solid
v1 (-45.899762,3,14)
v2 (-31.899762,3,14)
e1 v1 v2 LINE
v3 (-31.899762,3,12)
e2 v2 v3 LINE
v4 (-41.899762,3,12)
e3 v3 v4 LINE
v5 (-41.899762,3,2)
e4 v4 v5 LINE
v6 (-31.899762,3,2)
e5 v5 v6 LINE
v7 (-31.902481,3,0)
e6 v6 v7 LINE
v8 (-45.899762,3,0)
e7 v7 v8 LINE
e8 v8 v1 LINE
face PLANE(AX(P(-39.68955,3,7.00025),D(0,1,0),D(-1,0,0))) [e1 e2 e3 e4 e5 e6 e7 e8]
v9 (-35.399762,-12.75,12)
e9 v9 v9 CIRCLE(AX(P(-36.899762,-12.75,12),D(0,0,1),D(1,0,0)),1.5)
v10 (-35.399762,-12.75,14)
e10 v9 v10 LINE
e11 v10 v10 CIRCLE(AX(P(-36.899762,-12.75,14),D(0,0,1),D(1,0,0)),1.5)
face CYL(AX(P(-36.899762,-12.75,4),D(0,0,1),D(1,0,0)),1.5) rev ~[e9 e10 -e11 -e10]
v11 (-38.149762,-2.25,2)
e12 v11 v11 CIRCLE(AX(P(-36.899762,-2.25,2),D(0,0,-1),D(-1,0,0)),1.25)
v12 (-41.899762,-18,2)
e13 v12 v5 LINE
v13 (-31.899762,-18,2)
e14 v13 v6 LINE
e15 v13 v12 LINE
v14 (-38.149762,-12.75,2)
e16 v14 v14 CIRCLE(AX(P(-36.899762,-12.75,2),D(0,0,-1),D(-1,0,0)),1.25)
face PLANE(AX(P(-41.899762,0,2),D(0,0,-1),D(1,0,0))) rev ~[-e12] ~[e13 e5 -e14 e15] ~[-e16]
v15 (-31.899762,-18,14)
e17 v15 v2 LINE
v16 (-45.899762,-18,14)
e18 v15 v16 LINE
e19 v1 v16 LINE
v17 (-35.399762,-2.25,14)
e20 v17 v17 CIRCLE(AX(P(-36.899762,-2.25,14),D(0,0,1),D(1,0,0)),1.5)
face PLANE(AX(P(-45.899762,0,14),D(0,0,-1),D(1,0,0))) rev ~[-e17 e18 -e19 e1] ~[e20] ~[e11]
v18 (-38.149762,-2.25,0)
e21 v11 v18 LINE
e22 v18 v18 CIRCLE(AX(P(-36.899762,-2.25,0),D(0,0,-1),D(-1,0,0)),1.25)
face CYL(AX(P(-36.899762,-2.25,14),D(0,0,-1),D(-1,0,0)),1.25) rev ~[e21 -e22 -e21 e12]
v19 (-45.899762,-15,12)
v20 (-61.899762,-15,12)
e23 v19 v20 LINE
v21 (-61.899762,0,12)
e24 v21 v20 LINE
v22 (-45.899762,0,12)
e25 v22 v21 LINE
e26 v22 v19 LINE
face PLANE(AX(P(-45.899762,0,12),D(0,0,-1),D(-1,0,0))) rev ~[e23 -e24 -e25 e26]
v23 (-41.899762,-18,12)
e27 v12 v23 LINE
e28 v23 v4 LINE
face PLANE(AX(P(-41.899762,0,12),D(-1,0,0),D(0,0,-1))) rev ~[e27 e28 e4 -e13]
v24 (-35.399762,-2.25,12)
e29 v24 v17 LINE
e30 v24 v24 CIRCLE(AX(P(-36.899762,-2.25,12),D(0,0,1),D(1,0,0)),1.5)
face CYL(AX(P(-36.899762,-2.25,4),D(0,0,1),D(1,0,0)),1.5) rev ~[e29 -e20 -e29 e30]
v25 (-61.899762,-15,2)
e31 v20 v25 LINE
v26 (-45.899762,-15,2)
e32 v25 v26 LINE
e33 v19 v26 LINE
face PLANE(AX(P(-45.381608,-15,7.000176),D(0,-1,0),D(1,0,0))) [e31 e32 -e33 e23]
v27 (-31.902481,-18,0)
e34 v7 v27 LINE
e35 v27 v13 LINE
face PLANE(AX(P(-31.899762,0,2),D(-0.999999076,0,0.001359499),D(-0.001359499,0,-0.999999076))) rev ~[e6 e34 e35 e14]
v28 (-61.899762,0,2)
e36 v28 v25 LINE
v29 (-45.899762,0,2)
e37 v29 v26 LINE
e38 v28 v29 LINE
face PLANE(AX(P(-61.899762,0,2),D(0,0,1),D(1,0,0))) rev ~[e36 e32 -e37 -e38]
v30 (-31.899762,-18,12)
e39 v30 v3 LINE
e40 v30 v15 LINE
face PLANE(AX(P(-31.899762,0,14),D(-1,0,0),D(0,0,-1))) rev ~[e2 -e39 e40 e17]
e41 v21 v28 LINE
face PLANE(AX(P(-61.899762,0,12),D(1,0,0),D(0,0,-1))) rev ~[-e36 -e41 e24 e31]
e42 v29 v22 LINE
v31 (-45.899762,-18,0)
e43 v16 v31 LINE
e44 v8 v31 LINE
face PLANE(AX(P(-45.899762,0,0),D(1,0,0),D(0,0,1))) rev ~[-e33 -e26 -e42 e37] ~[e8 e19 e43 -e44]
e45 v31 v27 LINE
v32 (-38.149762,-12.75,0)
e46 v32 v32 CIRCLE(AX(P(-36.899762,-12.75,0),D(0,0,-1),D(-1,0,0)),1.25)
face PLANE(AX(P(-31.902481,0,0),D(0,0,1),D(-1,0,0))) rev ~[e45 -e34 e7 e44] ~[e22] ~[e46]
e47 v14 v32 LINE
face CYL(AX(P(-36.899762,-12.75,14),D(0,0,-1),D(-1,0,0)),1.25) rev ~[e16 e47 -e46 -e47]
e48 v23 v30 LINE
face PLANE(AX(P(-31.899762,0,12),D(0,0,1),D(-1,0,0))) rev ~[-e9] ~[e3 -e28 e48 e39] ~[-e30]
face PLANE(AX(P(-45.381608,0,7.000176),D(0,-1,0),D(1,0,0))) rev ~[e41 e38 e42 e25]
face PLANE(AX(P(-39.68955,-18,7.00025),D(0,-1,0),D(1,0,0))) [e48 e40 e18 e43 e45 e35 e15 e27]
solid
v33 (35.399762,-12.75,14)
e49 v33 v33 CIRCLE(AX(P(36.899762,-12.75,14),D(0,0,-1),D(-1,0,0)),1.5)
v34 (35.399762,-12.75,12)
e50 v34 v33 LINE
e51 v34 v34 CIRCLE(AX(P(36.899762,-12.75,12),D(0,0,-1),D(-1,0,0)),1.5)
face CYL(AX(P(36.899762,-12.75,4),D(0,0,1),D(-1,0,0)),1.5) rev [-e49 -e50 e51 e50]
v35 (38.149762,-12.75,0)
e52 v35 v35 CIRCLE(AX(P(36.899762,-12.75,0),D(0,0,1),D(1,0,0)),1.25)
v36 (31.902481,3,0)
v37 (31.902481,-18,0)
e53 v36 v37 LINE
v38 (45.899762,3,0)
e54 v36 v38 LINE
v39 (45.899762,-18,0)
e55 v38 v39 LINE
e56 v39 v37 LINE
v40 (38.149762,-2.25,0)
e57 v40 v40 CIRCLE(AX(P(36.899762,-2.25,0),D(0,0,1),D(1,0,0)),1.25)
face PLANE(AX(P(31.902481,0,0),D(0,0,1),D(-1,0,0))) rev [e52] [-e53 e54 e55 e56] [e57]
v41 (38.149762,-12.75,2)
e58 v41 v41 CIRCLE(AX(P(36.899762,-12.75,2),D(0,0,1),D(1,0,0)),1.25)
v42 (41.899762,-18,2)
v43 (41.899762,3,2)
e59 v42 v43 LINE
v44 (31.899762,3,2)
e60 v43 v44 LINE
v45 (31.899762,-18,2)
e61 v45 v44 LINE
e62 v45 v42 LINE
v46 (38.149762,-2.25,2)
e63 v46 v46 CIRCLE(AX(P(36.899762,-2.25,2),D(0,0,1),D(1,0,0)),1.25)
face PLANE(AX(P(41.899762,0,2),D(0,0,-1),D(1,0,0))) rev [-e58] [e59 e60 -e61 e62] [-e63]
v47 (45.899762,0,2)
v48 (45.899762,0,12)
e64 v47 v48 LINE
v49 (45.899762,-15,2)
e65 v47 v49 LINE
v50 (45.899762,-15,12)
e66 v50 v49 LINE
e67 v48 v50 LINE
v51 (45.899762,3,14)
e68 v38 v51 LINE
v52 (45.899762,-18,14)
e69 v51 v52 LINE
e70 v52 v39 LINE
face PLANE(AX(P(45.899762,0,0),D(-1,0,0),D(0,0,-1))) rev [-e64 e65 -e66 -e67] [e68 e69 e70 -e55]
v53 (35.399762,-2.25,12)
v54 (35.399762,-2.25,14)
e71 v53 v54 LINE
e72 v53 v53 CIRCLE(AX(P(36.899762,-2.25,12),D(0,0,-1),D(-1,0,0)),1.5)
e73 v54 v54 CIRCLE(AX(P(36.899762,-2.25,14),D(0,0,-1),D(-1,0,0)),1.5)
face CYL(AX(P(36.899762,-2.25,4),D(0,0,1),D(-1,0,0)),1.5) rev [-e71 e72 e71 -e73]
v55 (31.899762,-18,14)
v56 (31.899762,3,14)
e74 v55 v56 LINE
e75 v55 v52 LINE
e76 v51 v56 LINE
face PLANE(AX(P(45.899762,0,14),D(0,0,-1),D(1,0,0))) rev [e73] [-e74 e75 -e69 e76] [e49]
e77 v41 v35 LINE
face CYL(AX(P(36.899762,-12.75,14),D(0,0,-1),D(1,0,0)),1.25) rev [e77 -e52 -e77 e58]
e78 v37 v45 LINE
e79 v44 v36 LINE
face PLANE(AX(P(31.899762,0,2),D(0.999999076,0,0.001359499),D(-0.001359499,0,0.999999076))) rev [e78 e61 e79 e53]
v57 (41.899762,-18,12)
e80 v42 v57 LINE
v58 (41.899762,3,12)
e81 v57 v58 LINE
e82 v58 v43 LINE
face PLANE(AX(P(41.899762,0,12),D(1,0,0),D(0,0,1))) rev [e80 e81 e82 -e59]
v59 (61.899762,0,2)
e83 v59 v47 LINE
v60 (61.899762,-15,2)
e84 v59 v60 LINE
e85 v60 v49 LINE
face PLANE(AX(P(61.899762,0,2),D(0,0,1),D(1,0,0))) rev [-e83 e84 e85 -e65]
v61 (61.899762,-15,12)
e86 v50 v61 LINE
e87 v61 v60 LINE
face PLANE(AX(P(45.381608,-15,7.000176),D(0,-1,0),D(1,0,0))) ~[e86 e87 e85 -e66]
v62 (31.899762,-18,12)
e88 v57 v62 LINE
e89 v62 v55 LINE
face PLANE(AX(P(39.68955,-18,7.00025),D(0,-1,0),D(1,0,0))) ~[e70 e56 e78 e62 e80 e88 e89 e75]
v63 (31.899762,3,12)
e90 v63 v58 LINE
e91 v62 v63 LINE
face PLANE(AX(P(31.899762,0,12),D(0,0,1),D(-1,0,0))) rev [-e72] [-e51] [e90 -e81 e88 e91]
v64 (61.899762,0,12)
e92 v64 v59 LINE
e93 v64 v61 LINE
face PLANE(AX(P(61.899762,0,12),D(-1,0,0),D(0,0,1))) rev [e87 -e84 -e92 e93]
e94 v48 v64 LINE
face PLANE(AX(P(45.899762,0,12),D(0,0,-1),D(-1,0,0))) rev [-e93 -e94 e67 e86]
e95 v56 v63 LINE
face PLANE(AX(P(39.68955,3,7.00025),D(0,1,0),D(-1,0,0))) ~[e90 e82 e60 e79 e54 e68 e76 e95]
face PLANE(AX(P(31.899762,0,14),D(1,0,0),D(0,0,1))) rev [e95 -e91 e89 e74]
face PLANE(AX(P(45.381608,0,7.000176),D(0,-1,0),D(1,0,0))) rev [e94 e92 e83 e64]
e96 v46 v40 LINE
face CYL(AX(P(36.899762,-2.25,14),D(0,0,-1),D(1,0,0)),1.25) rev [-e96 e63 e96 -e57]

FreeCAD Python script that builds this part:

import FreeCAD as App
import Part
import Sketcher

V = App.Vector

doc = App.newDocument("Part")
body = doc.addObject("PartDesign::Body", "Body")

# Sketch on XZ plane
sketch1 = body.newObject("Sketcher::SketchObject", "Sketch")
sketch1.AttachmentSupport = (doc.getObject("XZ_Plane"), [""])
sketch1.MapMode = "FlatFace"
sketch1.addGeometry(Part.LineSegment(V(-45.899762, 0, 0), V(-31.902481, 0, 0)), False)
sketch1.addGeometry(Part.LineSegment(V(-31.902481, 0, 0), V(-31.899762, 2, 0)), False)
sketch1.addGeometry(Part.LineSegment(V(-31.899762, 2, 0), V(-41.899762, 2, 0)), False)
sketch1.addGeometry(Part.LineSegment(V(-41.899762, 2, 0), V(-41.899762, 12, 0)), False)
sketch1.addGeometry(Part.LineSegment(V(-41.899762, 12, 0), V(-31.899762, 12, 0)), False)
sketch1.addGeometry(Part.LineSegment(V(-31.899762, 12, 0), V(-31.899762, 14, 0)), False)
sketch1.addGeometry(Part.LineSegment(V(-31.899762, 14, 0), V(-45.899762, 14, 0)), False)
sketch1.addGeometry(Part.LineSegment(V(-45.899762, 14, 0), V(-45.899762, 12, 0)), False)
sketch1.addGeometry(Part.LineSegment(V(-45.899762, 12, 0), V(-61.899762, 12, 0)), False)
sketch1.addGeometry(Part.LineSegment(V(-61.899762, 12, 0), V(-61.899762, 2, 0)), False)
sketch1.addGeometry(Part.LineSegment(V(-61.899762, 2, 0), V(-45.899762, 2, 0)), False)
sketch1.addGeometry(Part.LineSegment(V(-45.899762, 2, 0), V(-45.899762, 0, 0)), False)
sketch1.addConstraint(Sketcher.Constraint("Coincident", 0, 2, 1, 1))
sketch1.addConstraint(Sketcher.Constraint("Coincident", 1, 2, 2, 1))
sketch1.addConstraint(Sketcher.Constraint("Coincident", 2, 2, 3, 1))
sketch1.addConstraint(Sketcher.Constraint("Coincident", 3, 2, 4, 1))
sketch1.addConstraint(Sketcher.Constraint("Coincident", 4, 2, 5, 1))
sketch1.addConstraint(Sketcher.Constraint("Coincident", 5, 2, 6, 1))
sketch1.addConstraint(Sketcher.Constraint("Coincident", 6, 2, 7, 1))
sketch1.addConstraint(Sketcher.Constraint("Coincident", 7, 2, 8, 1))
sketch1.addConstraint(Sketcher.Constraint("Coincident", 8, 2, 9, 1))
sketch1.addConstraint(Sketcher.Constraint("Coincident", 9, 2, 10, 1))
sketch1.addConstraint(Sketcher.Constraint("Coincident", 10, 2, 11, 1))
sketch1.addConstraint(Sketcher.Constraint("Coincident", 11, 2, 0, 1))
sketch1.addConstraint(Sketcher.Constraint("Horizontal", 0))
sketch1.addConstraint(Sketcher.Constraint("Horizontal", 2))
sketch1.addConstraint(Sketcher.Constraint("Vertical", 3))
sketch1.addConstraint(Sketcher.Constraint("Horizontal", 4))
sketch1.addConstraint(Sketcher.Constraint("Vertical", 5))
sketch1.addConstraint(Sketcher.Constraint("Horizontal", 6))
sketch1.addConstraint(Sketcher.Constraint("Vertical", 7))
sketch1.addConstraint(Sketcher.Constraint("Horizontal", 8))
sketch1.addConstraint(Sketcher.Constraint("Vertical", 9))
sketch1.addConstraint(Sketcher.Constraint("Horizontal", 10))
sketch1.addConstraint(Sketcher.Constraint("Vertical", 11))
sketch1.addConstraint(Sketcher.Constraint("PointOnObject", 0, 2, -1))
sketch1.addConstraint(Sketcher.Constraint("Horizontal", 4, 2, 7, 2))
sketch1.addConstraint(Sketcher.Constraint("Horizontal", 2, 2, 9, 2))
sketch1.addConstraint(Sketcher.Constraint("Vertical", 1, 2, 4, 2))
sketch1.addConstraint(Sketcher.Constraint("Vertical", 7, 2, 10, 2))
sketch1.addConstraint(Sketcher.Constraint("Equal", 4, 3))
sketch1.addConstraint(Sketcher.Constraint("Equal", 7, 11))
sketch1.addConstraint(Sketcher.Constraint("DistanceX", 2, 2, 2, 1, 10.0))
sketch1.addConstraint(Sketcher.Constraint("DistanceX", 6, 2, 6, 1, 14.0))
sketch1.addConstraint(Sketcher.Constraint("DistanceX", 8, 2, 8, 1, 16.0))
sketch1.addConstraint(Sketcher.Constraint("DistanceY", 5, 1, 5, 2, 2.0))
sketch1.addConstraint(Sketcher.Constraint("DistanceX", 0, 1, 0, 2, 13.997281))
sketch1.addConstraint(Sketcher.Constraint("DistanceX", 0, 2, -1, 1, 31.902481))
pad1 = body.newObject("PartDesign::Pad", "Pad")
pad1.Profile = sketch1
pad1.Length = 15

# Sketch on XZ plane
sketch2 = body.newObject("Sketcher::SketchObject", "Sketch001")
sketch2.AttachmentSupport = (doc.getObject("XZ_Plane"), [""])
sketch2.MapMode = "FlatFace"
sketch2.AttachmentOffset = App.Placement(V(0, 0, 15), App.Rotation())
sketch2.addGeometry(Part.LineSegment(V(-45.899762, 14, 0), V(-45.899762, 0, 0)), False)
sketch2.addGeometry(Part.LineSegment(V(-45.899762, 0, 0), V(-31.902481, 0, 0)), False)
sketch2.addGeometry(Part.LineSegment(V(-31.902481, 0, 0), V(-31.899762, 2, 0)), False)
sketch2.addGeometry(Part.LineSegment(V(-31.899762, 2, 0), V(-41.899762, 2, 0)), False)
sketch2.addGeometry(Part.LineSegment(V(-41.899762, 2, 0), V(-41.899762, 12, 0)), False)
sketch2.addGeometry(Part.LineSegment(V(-41.899762, 12, 0), V(-31.899762, 12, 0)), False)
sketch2.addGeometry(Part.LineSegment(V(-31.899762, 12, 0), V(-31.899762, 14, 0)), False)
sketch2.addGeometry(Part.LineSegment(V(-31.899762, 14, 0), V(-45.899762, 14, 0)), False)
sketch2.addConstraint(Sketcher.Constraint("Coincident", 0, 2, 1, 1))
sketch2.addConstraint(Sketcher.Constraint("Coincident", 1, 2, 2, 1))
sketch2.addConstraint(Sketcher.Constraint("Coincident", 2, 2, 3, 1))
sketch2.addConstraint(Sketcher.Constraint("Coincident", 3, 2, 4, 1))
sketch2.addConstraint(Sketcher.Constraint("Coincident", 4, 2, 5, 1))
sketch2.addConstraint(Sketcher.Constraint("Coincident", 5, 2, 6, 1))
sketch2.addConstraint(Sketcher.Constraint("Coincident", 6, 2, 7, 1))
sketch2.addConstraint(Sketcher.Constraint("Coincident", 7, 2, 0, 1))
sketch2.addConstraint(Sketcher.Constraint("Vertical", 0))
sketch2.addConstraint(Sketcher.Constraint("Horizontal", 1))
sketch2.addConstraint(Sketcher.Constraint("Horizontal", 3))
sketch2.addConstraint(Sketcher.Constraint("Vertical", 4))
sketch2.addConstraint(Sketcher.Constraint("Horizontal", 5))
sketch2.addConstraint(Sketcher.Constraint("Vertical", 6))
sketch2.addConstraint(Sketcher.Constraint("Horizontal", 7))
sketch2.addConstraint(Sketcher.Constraint("PointOnObject", 0, 2, -1))
sketch2.addConstraint(Sketcher.Constraint("Vertical", 2, 2, 5, 2))
sketch2.addConstraint(Sketcher.Constraint("Equal", 7, 0))
sketch2.addConstraint(Sketcher.Constraint("Equal", 5, 4))
sketch2.addConstraint(Sketcher.Constraint("DistanceX", 3, 2, 3, 1, 10.0))
sketch2.addConstraint(Sketcher.Constraint("DistanceX", 7, 2, 7, 1, 14.0))
sketch2.addConstraint(Sketcher.Constraint("DistanceY", 6, 1, 6, 2, 2.0))
sketch2.addConstraint(Sketcher.Constraint("DistanceX", 1, 1, 1, 2, 13.997281))
sketch2.addConstraint(Sketcher.Constraint("DistanceX", 1, 2, -1, 1, 31.902481))
pad2 = body.newObject("PartDesign::Pad", "Pad001")
pad2.Profile = sketch2
pad2.Length = 3

# Sketch on XZ plane
sketch3 = body.newObject("Sketcher::SketchObject", "Sketch002")
sketch3.AttachmentSupport = (doc.getObject("XZ_Plane"), [""])
sketch3.MapMode = "FlatFace"
sketch3.addGeometry(Part.LineSegment(V(-45.899762, 14, 0), V(-31.899762, 14, 0)), False)
sketch3.addGeometry(Part.LineSegment(V(-31.899762, 14, 0), V(-31.899762, 12, 0)), False)
sketch3.addGeometry(Part.LineSegment(V(-31.899762, 12, 0), V(-41.899762, 12, 0)), False)
sketch3.addGeometry(Part.LineSegment(V(-41.899762, 12, 0), V(-41.899762, 2, 0)), False)
sketch3.addGeometry(Part.LineSegment(V(-41.899762, 2, 0), V(-31.899762, 2, 0)), False)
sketch3.addGeometry(Part.LineSegment(V(-31.899762, 2, 0), V(-31.902481, 0, 0)), False)
sketch3.addGeometry(Part.LineSegment(V(-31.902481, 0, 0), V(-45.899762, 0, 0)), False)
sketch3.addGeometry(Part.LineSegment(V(-45.899762, 0, 0), V(-45.899762, 14, 0)), False)
sketch3.addConstraint(Sketcher.Constraint("Coincident", 0, 2, 1, 1))
sketch3.addConstraint(Sketcher.Constraint("Coincident", 1, 2, 2, 1))
sketch3.addConstraint(Sketcher.Constraint("Coincident", 2, 2, 3, 1))
sketch3.addConstraint(Sketcher.Constraint("Coincident", 3, 2, 4, 1))
sketch3.addConstraint(Sketcher.Constraint("Coincident", 4, 2, 5, 1))
sketch3.addConstraint(Sketcher.Constraint("Coincident", 5, 2, 6, 1))
sketch3.addConstraint(Sketcher.Constraint("Coincident", 6, 2, 7, 1))
sketch3.addConstraint(Sketcher.Constraint("Coincident", 7, 2, 0, 1))
sketch3.addConstraint(Sketcher.Constraint("Horizontal", 0))
sketch3.addConstraint(Sketcher.Constraint("Vertical", 1))
sketch3.addConstraint(Sketcher.Constraint("Horizontal", 2))
sketch3.addConstraint(Sketcher.Constraint("Vertical", 3))
sketch3.addConstraint(Sketcher.Constraint("Horizontal", 4))
sketch3.addConstraint(Sketcher.Constraint("Horizontal", 6))
sketch3.addConstraint(Sketcher.Constraint("Vertical", 7))
sketch3.addConstraint(Sketcher.Constraint("PointOnObject", 5, 2, -1))
sketch3.addConstraint(Sketcher.Constraint("Vertical", 1, 2, 4, 2))
sketch3.addConstraint(Sketcher.Constraint("Equal", 4, 3))
sketch3.addConstraint(Sketcher.Constraint("Equal", 0, 7))
sketch3.addConstraint(Sketcher.Constraint("DistanceX", 0, 1, 0, 2, 14.0))
sketch3.addConstraint(Sketcher.Constraint("DistanceX", 2, 2, 2, 1, 10.0))
sketch3.addConstraint(Sketcher.Constraint("DistanceY", 1, 2, 1, 1, 2.0))
sketch3.addConstraint(Sketcher.Constraint("DistanceX", 6, 2, 6, 1, 13.997281))
sketch3.addConstraint(Sketcher.Constraint("DistanceX", 0, 2, -1, 1, 31.899762))
pad3 = body.newObject("PartDesign::Pad", "Pad002")
pad3.Profile = sketch3
pad3.Length = 3
pad3.Reversed = True

# Sketch on XY plane
sketch4 = body.newObject("Sketcher::SketchObject", "Sketch003")
sketch4.AttachmentSupport = (doc.getObject("XY_Plane"), [""])
sketch4.MapMode = "FlatFace"
sketch4.AttachmentOffset = App.Placement(V(0, 0, 14), App.Rotation())
sketch4.addGeometry(Part.Circle(V(-36.899762, -2.25, 0), V(0, 0, 1), 1.25), False)
sketch4.addGeometry(Part.Circle(V(-36.899762, -12.75, 0), V(0, 0, 1), 1.25), False)
sketch4.addConstraint(Sketcher.Constraint("Equal", 0, 1))
sketch4.addConstraint(Sketcher.Constraint("Vertical", 0, 3, 1, 3))
sketch4.addConstraint(Sketcher.Constraint("Diameter", 0, 2.5))
sketch4.addConstraint(Sketcher.Constraint("DistanceY", 1, 3, 0, 3, 10.5))
sketch4.addConstraint(Sketcher.Constraint("DistanceY", 0, 3, -1, 1, 2.25))
sketch4.addConstraint(Sketcher.Constraint("DistanceX", 0, 3, -1, 1, 36.899762))
doc.recompute()
hole = body.newObject("PartDesign::Hole", "Hole")
hole.Profile = sketch4
hole.ThreadType = "None"
hole.Diameter = 2.5
hole.DepthType = "ThroughAll"
hole.HoleCutType = "Counterbore"
hole.HoleCutDiameter = 3
hole.HoleCutDepth = 10
body2 = doc.addObject("PartDesign::Body", "Body001")
doc.recompute()

mirroring = doc.addObject("Part::Mirroring", "Mirroring")
mirroring.Source = body
mirroring.Base = V(0, 0, 0)
mirroring.Normal = V(1, 0, 0)
body2.BaseFeature = mirroring
doc.recompute()
mirroring.Visibility = False

doc.recompute()
